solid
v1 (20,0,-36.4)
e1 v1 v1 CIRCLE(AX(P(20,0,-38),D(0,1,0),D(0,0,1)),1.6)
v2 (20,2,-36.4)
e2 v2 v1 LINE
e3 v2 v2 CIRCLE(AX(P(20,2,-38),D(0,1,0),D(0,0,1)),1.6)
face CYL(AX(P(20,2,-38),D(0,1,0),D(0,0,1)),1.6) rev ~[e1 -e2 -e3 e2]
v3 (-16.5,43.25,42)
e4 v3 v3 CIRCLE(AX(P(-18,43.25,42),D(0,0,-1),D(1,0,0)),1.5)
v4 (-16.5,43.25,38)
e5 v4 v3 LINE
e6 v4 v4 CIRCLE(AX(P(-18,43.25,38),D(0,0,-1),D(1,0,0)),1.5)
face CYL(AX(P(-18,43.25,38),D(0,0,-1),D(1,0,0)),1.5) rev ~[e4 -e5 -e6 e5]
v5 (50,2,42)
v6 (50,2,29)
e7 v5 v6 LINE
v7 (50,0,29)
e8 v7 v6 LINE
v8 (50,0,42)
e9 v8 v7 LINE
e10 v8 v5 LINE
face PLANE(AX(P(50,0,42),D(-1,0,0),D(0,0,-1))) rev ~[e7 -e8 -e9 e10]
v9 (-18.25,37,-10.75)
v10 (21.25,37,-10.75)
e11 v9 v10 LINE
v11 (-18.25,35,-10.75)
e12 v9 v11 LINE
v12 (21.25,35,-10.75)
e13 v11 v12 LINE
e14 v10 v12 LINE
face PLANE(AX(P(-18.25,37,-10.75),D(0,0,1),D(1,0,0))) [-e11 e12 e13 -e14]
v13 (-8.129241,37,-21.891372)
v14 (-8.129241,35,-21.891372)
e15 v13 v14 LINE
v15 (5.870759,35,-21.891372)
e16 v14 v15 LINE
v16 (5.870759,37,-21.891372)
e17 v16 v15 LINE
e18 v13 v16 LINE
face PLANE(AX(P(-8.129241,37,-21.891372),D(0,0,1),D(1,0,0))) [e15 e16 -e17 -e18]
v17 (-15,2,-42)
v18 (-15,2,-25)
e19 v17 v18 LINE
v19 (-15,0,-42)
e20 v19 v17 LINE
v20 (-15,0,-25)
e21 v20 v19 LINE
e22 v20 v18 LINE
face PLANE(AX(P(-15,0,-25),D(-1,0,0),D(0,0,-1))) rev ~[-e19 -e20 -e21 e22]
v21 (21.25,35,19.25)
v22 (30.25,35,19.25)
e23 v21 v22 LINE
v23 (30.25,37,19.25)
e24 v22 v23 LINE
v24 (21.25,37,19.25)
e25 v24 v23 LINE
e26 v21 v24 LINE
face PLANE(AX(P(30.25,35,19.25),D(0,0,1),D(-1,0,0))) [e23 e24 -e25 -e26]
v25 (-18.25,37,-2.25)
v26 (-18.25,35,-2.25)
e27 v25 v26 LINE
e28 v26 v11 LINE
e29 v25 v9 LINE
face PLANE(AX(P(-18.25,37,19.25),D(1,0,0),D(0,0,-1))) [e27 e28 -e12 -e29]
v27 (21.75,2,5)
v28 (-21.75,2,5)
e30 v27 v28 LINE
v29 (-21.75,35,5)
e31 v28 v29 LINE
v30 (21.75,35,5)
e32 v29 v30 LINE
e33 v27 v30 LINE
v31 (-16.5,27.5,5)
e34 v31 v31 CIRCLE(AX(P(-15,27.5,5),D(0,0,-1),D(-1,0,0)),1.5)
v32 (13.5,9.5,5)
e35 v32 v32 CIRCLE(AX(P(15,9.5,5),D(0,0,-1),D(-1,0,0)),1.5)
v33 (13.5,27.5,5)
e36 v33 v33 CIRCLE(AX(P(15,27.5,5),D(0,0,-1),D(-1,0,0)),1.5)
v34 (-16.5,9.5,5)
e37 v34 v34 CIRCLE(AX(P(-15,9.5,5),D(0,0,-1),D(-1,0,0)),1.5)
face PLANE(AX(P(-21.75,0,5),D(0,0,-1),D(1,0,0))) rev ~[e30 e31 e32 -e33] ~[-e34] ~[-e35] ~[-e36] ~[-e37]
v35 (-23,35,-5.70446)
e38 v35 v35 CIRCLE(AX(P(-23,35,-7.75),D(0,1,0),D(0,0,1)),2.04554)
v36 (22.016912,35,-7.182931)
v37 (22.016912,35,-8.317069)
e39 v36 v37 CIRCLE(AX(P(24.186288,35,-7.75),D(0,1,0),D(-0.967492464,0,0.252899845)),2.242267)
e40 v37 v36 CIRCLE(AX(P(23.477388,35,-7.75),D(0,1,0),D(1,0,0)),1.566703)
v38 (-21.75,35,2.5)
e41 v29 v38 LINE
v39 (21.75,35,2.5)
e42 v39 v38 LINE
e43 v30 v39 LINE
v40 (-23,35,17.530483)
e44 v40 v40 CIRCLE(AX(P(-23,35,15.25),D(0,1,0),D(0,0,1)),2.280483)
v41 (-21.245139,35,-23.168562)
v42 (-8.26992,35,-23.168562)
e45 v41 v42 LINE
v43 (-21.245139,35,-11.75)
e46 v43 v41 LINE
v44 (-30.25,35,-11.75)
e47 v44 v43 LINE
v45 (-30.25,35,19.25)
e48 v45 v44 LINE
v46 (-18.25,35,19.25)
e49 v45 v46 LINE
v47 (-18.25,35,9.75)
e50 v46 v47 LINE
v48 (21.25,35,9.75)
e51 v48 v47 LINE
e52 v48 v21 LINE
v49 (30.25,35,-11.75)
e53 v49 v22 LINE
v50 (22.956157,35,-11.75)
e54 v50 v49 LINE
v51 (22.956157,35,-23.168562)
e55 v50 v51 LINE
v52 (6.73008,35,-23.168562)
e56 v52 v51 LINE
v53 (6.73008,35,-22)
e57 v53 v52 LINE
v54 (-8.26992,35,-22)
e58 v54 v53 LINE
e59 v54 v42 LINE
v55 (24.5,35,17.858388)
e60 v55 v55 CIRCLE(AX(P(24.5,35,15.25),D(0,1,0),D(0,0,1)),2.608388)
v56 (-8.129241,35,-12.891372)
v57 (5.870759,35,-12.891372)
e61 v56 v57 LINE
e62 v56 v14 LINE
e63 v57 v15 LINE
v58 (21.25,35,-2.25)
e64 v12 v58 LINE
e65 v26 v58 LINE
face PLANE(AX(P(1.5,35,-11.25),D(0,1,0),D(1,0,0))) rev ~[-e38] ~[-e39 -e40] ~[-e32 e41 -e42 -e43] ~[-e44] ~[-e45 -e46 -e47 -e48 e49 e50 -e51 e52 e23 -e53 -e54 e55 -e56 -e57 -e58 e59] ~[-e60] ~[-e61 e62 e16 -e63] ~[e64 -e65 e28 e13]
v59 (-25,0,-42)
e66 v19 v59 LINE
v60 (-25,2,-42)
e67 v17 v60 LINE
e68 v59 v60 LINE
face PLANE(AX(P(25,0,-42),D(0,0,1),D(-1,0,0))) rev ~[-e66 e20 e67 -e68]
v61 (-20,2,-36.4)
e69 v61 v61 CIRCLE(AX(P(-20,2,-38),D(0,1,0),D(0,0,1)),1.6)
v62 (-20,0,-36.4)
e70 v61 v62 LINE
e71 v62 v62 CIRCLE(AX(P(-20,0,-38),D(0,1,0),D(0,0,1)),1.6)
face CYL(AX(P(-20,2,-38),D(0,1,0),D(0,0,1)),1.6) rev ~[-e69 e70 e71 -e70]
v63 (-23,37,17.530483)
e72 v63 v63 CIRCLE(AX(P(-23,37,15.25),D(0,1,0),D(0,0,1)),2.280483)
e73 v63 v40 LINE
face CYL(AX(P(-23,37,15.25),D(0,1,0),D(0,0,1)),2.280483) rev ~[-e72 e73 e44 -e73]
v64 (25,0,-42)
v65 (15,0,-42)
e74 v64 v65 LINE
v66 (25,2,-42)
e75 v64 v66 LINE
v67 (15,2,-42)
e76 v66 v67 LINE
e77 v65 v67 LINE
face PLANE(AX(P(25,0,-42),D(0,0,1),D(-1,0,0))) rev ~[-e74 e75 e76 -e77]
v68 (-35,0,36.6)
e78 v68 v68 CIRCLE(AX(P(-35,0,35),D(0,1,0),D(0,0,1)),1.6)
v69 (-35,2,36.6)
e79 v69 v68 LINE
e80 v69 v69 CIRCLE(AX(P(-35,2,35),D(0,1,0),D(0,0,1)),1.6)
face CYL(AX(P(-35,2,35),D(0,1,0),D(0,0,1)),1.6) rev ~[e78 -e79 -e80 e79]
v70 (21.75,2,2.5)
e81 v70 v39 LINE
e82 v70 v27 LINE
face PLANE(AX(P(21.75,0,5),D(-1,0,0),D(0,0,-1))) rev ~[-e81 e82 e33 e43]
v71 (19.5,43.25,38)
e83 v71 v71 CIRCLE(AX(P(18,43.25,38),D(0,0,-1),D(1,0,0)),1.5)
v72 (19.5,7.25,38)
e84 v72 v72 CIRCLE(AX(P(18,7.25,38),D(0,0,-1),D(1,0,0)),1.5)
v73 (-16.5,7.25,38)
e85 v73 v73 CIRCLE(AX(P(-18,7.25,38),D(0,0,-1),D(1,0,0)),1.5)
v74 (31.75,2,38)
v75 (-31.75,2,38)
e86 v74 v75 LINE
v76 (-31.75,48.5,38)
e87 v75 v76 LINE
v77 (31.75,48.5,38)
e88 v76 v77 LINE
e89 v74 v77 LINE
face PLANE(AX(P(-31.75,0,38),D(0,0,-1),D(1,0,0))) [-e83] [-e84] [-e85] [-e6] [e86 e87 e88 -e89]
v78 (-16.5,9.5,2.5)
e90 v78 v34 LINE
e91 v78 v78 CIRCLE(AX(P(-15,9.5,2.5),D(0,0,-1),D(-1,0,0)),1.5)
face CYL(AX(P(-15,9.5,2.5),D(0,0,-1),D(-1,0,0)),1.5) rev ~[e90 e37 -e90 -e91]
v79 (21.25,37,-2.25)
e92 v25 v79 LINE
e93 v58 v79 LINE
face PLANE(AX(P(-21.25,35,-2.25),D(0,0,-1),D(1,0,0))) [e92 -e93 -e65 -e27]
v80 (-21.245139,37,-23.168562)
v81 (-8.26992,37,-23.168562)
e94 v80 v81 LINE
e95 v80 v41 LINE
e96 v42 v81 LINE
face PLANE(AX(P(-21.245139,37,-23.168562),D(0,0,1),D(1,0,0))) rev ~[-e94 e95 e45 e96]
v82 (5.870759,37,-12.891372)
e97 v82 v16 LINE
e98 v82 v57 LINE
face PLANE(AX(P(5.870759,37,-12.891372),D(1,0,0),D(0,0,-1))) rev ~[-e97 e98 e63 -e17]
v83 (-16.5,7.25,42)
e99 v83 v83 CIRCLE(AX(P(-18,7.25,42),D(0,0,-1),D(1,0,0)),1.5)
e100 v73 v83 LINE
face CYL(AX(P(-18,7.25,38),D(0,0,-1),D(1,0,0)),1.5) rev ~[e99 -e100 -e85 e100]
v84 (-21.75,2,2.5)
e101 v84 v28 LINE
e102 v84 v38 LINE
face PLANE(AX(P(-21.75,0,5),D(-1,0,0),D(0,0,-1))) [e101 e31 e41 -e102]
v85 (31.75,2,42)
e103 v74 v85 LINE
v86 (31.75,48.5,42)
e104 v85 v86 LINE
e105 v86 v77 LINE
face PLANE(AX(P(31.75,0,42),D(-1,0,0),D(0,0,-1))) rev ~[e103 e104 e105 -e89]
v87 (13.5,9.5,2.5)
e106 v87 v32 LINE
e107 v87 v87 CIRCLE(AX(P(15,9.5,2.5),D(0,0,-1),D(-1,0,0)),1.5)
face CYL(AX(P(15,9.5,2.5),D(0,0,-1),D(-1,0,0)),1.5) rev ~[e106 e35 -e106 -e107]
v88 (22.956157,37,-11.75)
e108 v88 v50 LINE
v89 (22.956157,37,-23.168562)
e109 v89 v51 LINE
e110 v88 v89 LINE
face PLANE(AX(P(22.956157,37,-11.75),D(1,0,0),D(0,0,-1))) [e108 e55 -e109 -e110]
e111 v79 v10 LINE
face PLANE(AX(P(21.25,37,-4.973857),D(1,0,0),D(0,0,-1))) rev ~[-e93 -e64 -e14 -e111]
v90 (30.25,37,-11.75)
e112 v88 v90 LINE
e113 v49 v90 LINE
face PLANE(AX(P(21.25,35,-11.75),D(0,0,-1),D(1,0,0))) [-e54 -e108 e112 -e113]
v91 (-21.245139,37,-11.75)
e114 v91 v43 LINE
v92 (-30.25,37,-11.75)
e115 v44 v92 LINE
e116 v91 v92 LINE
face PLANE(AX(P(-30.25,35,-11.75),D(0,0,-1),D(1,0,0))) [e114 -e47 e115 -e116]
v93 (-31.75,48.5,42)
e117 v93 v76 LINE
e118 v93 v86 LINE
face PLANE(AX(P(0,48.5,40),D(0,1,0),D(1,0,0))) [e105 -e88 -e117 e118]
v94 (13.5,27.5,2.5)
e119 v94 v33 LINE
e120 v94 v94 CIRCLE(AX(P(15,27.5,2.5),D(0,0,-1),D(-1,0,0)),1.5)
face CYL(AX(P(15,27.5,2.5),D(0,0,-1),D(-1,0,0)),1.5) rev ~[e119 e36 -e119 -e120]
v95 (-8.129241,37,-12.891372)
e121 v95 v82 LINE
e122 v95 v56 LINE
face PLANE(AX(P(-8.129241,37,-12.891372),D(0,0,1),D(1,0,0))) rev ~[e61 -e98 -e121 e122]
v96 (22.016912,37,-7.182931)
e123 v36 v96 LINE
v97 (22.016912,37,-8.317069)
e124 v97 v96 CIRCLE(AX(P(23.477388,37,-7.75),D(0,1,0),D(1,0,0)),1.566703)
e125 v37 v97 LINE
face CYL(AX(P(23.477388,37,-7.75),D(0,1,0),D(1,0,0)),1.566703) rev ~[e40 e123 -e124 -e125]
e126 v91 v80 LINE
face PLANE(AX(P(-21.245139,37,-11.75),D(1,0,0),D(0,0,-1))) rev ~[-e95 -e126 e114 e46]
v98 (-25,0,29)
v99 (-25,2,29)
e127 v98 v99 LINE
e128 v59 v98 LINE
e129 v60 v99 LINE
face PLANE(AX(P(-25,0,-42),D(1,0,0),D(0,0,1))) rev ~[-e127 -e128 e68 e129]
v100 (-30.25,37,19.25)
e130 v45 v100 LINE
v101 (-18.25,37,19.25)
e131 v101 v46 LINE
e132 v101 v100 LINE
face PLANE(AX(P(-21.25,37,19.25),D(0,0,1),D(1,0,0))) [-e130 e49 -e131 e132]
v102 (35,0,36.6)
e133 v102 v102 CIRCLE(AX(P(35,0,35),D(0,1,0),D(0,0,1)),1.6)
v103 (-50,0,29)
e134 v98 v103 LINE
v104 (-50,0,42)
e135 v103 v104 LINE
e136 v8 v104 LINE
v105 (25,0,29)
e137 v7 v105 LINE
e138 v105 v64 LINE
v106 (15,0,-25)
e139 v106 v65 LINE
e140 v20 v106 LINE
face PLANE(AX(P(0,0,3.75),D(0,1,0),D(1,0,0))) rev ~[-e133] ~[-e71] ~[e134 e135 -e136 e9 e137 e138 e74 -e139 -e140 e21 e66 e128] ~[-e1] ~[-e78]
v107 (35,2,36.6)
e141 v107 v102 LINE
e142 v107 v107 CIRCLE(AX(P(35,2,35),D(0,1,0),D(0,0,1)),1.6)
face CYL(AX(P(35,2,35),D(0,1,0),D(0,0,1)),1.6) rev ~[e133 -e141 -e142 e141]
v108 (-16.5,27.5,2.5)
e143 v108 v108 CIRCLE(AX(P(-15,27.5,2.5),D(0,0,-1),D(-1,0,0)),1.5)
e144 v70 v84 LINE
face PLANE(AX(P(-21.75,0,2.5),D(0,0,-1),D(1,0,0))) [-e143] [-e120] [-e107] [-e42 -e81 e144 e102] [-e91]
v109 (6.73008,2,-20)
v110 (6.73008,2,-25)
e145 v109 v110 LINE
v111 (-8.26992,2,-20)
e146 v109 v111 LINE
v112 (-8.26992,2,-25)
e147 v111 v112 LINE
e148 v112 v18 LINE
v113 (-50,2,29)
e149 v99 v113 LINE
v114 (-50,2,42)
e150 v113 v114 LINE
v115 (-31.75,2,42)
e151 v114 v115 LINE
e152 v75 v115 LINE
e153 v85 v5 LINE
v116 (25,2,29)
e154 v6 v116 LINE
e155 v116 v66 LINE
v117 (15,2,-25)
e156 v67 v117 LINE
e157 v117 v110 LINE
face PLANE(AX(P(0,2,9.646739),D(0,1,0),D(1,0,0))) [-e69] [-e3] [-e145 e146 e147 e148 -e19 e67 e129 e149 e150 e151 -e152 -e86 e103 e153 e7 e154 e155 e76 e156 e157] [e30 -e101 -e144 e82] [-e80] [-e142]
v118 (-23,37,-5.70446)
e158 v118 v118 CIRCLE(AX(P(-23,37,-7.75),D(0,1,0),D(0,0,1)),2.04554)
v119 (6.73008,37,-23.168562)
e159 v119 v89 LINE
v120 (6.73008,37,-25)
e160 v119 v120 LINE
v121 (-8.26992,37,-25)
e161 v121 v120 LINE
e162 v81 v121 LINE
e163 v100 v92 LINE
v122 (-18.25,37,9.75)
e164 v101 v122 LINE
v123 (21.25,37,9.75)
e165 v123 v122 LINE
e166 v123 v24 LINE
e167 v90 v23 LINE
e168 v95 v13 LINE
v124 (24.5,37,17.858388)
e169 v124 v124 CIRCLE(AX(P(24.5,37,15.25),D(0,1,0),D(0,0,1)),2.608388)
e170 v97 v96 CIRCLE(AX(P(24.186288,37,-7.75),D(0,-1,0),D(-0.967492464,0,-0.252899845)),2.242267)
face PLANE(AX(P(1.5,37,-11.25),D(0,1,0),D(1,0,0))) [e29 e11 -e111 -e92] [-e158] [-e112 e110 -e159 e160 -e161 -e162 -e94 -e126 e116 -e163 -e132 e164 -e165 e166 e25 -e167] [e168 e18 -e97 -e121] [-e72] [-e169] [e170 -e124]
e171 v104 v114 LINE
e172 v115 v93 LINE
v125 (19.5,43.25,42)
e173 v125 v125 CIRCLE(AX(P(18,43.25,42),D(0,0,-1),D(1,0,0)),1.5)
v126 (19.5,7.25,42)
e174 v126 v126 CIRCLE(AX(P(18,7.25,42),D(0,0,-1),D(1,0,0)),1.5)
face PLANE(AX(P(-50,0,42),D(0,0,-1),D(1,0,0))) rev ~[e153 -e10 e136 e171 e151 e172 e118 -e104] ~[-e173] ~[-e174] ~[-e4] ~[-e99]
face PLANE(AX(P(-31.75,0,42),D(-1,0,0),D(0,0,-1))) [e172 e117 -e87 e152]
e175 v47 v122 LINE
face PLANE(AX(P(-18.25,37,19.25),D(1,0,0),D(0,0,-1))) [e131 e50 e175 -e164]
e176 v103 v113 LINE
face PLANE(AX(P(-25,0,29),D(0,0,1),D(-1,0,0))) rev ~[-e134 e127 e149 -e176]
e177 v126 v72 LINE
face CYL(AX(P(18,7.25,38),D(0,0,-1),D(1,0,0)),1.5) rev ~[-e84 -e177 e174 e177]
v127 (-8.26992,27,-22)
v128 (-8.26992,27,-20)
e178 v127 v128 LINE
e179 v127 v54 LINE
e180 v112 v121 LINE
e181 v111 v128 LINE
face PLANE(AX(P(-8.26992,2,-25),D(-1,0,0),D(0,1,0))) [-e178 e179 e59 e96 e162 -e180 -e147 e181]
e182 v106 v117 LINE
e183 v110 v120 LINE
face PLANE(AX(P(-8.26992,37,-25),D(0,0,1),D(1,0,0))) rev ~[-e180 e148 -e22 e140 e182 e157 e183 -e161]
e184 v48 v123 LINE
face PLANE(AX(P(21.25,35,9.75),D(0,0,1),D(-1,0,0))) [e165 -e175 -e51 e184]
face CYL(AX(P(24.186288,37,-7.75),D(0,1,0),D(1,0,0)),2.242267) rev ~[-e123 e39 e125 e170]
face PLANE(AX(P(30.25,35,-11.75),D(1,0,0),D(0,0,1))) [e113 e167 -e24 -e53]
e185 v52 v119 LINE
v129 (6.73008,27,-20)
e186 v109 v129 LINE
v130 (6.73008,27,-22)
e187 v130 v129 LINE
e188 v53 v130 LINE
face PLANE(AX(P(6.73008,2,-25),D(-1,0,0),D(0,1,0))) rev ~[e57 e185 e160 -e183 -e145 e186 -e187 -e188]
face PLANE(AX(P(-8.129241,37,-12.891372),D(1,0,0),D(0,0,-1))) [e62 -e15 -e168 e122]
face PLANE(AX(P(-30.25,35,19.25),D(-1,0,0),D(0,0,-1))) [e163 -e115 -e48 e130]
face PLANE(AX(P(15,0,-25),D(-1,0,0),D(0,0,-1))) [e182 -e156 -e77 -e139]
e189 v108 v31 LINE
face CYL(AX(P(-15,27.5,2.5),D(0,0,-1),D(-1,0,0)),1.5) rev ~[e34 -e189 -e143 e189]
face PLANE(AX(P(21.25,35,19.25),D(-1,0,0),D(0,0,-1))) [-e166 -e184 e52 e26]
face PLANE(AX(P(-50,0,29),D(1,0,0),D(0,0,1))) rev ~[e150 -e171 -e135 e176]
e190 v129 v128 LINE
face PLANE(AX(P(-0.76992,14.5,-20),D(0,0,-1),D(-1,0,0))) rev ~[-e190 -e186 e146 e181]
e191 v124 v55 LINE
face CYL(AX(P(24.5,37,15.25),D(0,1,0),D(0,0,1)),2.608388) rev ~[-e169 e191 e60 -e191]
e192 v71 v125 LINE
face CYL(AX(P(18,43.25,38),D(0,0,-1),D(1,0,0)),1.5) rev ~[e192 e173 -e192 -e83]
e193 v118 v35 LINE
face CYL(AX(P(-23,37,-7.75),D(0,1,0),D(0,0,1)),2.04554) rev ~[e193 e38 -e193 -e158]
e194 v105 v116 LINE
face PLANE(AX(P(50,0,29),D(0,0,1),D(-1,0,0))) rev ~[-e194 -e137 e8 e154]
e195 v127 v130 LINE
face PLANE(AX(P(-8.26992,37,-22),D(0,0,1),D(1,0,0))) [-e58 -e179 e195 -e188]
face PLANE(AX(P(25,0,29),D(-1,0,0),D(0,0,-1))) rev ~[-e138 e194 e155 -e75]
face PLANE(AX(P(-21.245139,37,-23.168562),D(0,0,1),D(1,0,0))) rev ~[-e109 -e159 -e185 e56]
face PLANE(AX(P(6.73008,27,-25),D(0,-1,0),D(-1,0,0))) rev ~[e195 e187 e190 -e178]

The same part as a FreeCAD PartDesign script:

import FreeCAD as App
import Part
import Sketcher

V = App.Vector
Q = App.Units.Quantity

doc = App.newDocument("Part")
params = doc.addObject("Spreadsheet::Sheet", "Params")
for row, (alias, value) in enumerate([
    ("sketch1_width", "50 mm"),
    ("sketch1_width2", "25 mm"),
    ("sketch1_height", "71 mm"),
    ("sketch1_height2", "13 mm"),
    ("pad1_length", "2 mm"),
    ("sketch2_width", "30 mm"),
    ("sketch2_height", "17 mm"),
    ("pocket1_length", "8 mm"),
    ("sketch3_height", "4 mm"),
    ("sketch3_width", "63.5 mm"),
    ("pad2_length", "48.5 mm"),
    ("sketch4_width", "43.5 mm"),
    ("sketch4_height", "2.5 mm"),
    ("pad3_length", "35 mm"),
    ("sketch5_diameter", "3 mm"),
    ("pocket2_length", "18 mm"),
    ("sketch6_diameter", "3 mm"),
    ("pocket3_length", "23 mm"),
    ("sketch7_width", "9 mm"),
    ("sketch7_height", "31 mm"),
    ("sketch7_width2", "42.5 mm"),
    ("sketch7_height2", "9.5 mm"),
    ("pad4_length", "2 mm"),
    ("sketch8_diameter", "3 mm"),
    ("pocket4_length", "2 mm"),
    ("sketch9_width", "3 mm"),
    ("sketch9_height", "31 mm"),
    ("pad5_length", "2 mm"),
    ("sketch10_width", "15 mm"),
    ("sketch10_height", "3 mm"),
    ("pad6_length", "25 mm"),
    ("sketch11_width", "15 mm"),
    ("sketch11_height", "3 mm"),
    ("pad7_length", "2 mm"),
    ("pocket5_length", "2 mm"),
    ("pad8_length", "2 mm"),
    ("sketch14_width", "15 mm"),
    ("sketch14_height", "3 mm"),
    ("pad9_length", "8 mm"),
    ("sketch15_width", "14 mm"),
    ("sketch15_height", "9 mm"),
    ("pocket6_length", "2 mm"),
    ("sketch16_height", "1 mm"),
    ("sketch16_width", "39.5 mm"),
    ("pad10_length", "2 mm"),
    ("pad11_length", "2 mm"),
    ("pocket7_length", "2 mm"),
    ("pad12_length", "2 mm"),
    ("pocket8_length", "2 mm"),
    ("pocket9_length", "2 mm"),
    ("pocket10_length", "2 mm"),
    ("sketch23_width", "15 mm"),
    ("sketch23_height", "25 mm"),
    ("pad13_length", "5 mm"),
    ("sketch24_diameter", "3.2 mm"),
    ("pocket11_length", "10 mm"),
], start=1):
    params.set(f"A{row}", alias)
    params.set(f"B{row}", "=" + value)
    params.setAlias(f"B{row}", alias)

body = doc.addObject("PartDesign::Body", "Body")

sketch1 = body.newObject("Sketcher::SketchObject", "Sketch")
sketch1.AttachmentSupport = (doc.getObject("XZ_Plane"), [""])
sketch1.MapMode = "FlatFace"
sketch1.addGeometry([
    Part.LineSegment(V(25, -42, 0), V(-25, -42, 0)),
    Part.LineSegment(V(-25, -42, 0), V(-25, 29, 0)),
    Part.LineSegment(V(-25, 29, 0), V(-50, 29, 0)),
    Part.LineSegment(V(-50, 29, 0), V(-50, 42, 0)),
    Part.LineSegment(V(-50, 42, 0), V(50, 42, 0)),
    Part.LineSegment(V(50, 42, 0), V(50, 29, 0)),
    Part.LineSegment(V(50, 29, 0), V(25, 29, 0)),
    Part.LineSegment(V(25, 29, 0), V(25, -42, 0)),
], False)
sketch1.addConstraint([
    Sketcher.Constraint("Coincident", 0, 2, 1, 1),
    Sketcher.Constraint("Coincident", 1, 2, 2, 1),
    Sketcher.Constraint("Coincident", 2, 2, 3, 1),
    Sketcher.Constraint("Coincident", 3, 2, 4, 1),
    Sketcher.Constraint("Coincident", 4, 2, 5, 1),
    Sketcher.Constraint("Coincident", 5, 2, 6, 1),
    Sketcher.Constraint("Coincident", 6, 2, 7, 1),
    Sketcher.Constraint("Coincident", 7, 2, 0, 1),
    Sketcher.Constraint("Horizontal", 0),
    Sketcher.Constraint("Vertical", 1),
    Sketcher.Constraint("Horizontal", 2),
    Sketcher.Constraint("Vertical", 3),
    Sketcher.Constraint("Horizontal", 4),
    Sketcher.Constraint("Vertical", 5),
    Sketcher.Constraint("Horizontal", 6),
    Sketcher.Constraint("Vertical", 7),
    Sketcher.Constraint("Symmetric", 2, 2, 5, 2, -2),
    Sketcher.Constraint("Equal", 2, 6),
    Sketcher.Constraint("DistanceX", 0, 2, 0, 1, Q("50 mm")),
    Sketcher.Constraint("DistanceX", 2, 2, 2, 1, Q("25 mm")),
    Sketcher.Constraint("DistanceY", 1, 1, 1, 2, Q("71 mm")),
    Sketcher.Constraint("DistanceY", 3, 1, 3, 2, Q("13 mm")),
    Sketcher.Constraint("DistanceY", 0, 2, -1, 1, Q("42 mm")),
])
sketch1.setExpression("Constraints[18]", "Params.sketch1_width")
sketch1.setExpression("Constraints[19]", "Params.sketch1_width2")
sketch1.setExpression("Constraints[20]", "Params.sketch1_height")
sketch1.setExpression("Constraints[21]", "Params.sketch1_height2")
pad1 = body.newObject("PartDesign::Pad", "Pad")
pad1.Profile = sketch1
pad1.setExpression("Length", "Params.pad1_length")
pad1.Reversed = True

sketch2 = body.newObject("Sketcher::SketchObject", "Sketch001")
sketch2.AttachmentSupport = (doc.getObject("XZ_Plane"), [""])
sketch2.MapMode = "FlatFace"
sketch2.addGeometry([
    Part.LineSegment(V(-15, -42, 0), V(-15, -25, 0)),
    Part.LineSegment(V(-15, -25, 0), V(15, -25, 0)),
    Part.LineSegment(V(15, -25, 0), V(15, -42, 0)),
    Part.LineSegment(V(15, -42, 0), V(-15, -42, 0)),
], False)
sketch2.addConstraint([
    Sketcher.Constraint("Coincident", 0, 2, 1, 1),
    Sketcher.Constraint("Coincident", 1, 2, 2, 1),
    Sketcher.Constraint("Coincident", 2, 2, 3, 1),
    Sketcher.Constraint("Coincident", 3, 2, 0, 1),
    Sketcher.Constraint("Vertical", 0),
    Sketcher.Constraint("Horizontal", 1),
    Sketcher.Constraint("Vertical", 2),
    Sketcher.Constraint("Horizontal", 3),
    Sketcher.Constraint("DistanceX", 1, 1, 1, 2, Q("30 mm")),
    Sketcher.Constraint("DistanceY", 0, 1, 0, 2, Q("17 mm")),
    Sketcher.Constraint("DistanceX", 0, 2, -1, 1, Q("15 mm")),
    Sketcher.Constraint("DistanceY", 0, 2, -1, 1, Q("25 mm")),
])
sketch2.setExpression("Constraints[8]", "Params.sketch2_width")
sketch2.setExpression("Constraints[9]", "Params.sketch2_height")
pocket1 = body.newObject("PartDesign::Pocket", "Pocket")
pocket1.Profile = sketch2
pocket1.setExpression("Length", "Params.pocket1_length")

sketch3 = body.newObject("Sketcher::SketchObject", "Sketch002")
sketch3.AttachmentSupport = (doc.getObject("XZ_Plane"), [""])
sketch3.MapMode = "FlatFace"
sketch3.addGeometry([
    Part.LineSegment(V(-31.75, 38, 0), V(-31.75, 42, 0)),
    Part.LineSegment(V(-31.75, 42, 0), V(31.75, 42, 0)),
    Part.LineSegment(V(31.75, 42, 0), V(31.75, 38, 0)),
    Part.LineSegment(V(31.75, 38, 0), V(-31.75, 38, 0)),
], False)
sketch3.addConstraint([
    Sketcher.Constraint("Coincident", 0, 2, 1, 1),
    Sketcher.Constraint("Coincident", 1, 2, 2, 1),
    Sketcher.Constraint("Coincident", 2, 2, 3, 1),
    Sketcher.Constraint("Coincident", 3, 2, 0, 1),
    Sketcher.Constraint("Vertical", 0),
    Sketcher.Constraint("Horizontal", 1),
    Sketcher.Constraint("Vertical", 2),
    Sketcher.Constraint("Horizontal", 3),
    Sketcher.Constraint("DistanceY", 0, 1, 0, 2, Q("4 mm")),
    Sketcher.Constraint("DistanceX", 1, 1, 1, 2, Q("63.5 mm")),
    Sketcher.Constraint("DistanceY", -1, 1, 0, 2, Q("42 mm")),
    Sketcher.Constraint("DistanceX", 0, 2, -1, 1, Q("31.75 mm")),
])
sketch3.setExpression("Constraints[8]", "Params.sketch3_height")
sketch3.setExpression("Constraints[9]", "Params.sketch3_width")
pad2 = body.newObject("PartDesign::Pad", "Pad001")
pad2.Profile = sketch3
pad2.setExpression("Length", "Params.pad2_length")
pad2.Reversed = True

sketch4 = body.newObject("Sketcher::SketchObject", "Sketch003")
sketch4.AttachmentSupport = (doc.getObject("XZ_Plane"), [""])
sketch4.MapMode = "FlatFace"
sketch4.addGeometry([
    Part.LineSegment(V(-21.75, 2.5, 0), V(-21.75, 5, 0)),
    Part.LineSegment(V(-21.75, 5, 0), V(21.75, 5, 0)),
    Part.LineSegment(V(21.75, 5, 0), V(21.75, 2.5, 0)),
    Part.LineSegment(V(21.75, 2.5, 0), V(-21.75, 2.5, 0)),
], False)
sketch4.addConstraint([
    Sketcher.Constraint("Coincident", 0, 2, 1, 1),
    Sketcher.Constraint("Coincident", 1, 2, 2, 1),
    Sketcher.Constraint("Coincident", 2, 2, 3, 1),
    Sketcher.Constraint("Coincident", 3, 2, 0, 1),
    Sketcher.Constraint("Vertical", 0),
    Sketcher.Constraint("Horizontal", 1),
    Sketcher.Constraint("Vertical", 2),
    Sketcher.Constraint("Horizontal", 3),
    Sketcher.Constraint("DistanceX", 1, 1, 1, 2, Q("43.5 mm")),
    Sketcher.Constraint("DistanceY", 0, 1, 0, 2, Q("2.5 mm")),
    Sketcher.Constraint("DistanceY", -1, 1, 0, 2, Q("5 mm")),
    Sketcher.Constraint("DistanceX", 0, 2, -1, 1, Q("21.75 mm")),
])
sketch4.setExpression("Constraints[8]", "Params.sketch4_width")
sketch4.setExpression("Constraints[9]", "Params.sketch4_height")
pad3 = body.newObject("PartDesign::Pad", "Pad002")
pad3.Profile = sketch4
pad3.setExpression("Length", "Params.pad3_length")
pad3.Reversed = True

sketch5 = body.newObject("Sketcher::SketchObject", "Sketch004")
sketch5.AttachmentSupport = (doc.getObject("XY_Plane"), [""])
sketch5.MapMode = "FlatFace"
sketch5.AttachmentOffset = App.Placement(V(0, 0, 38), App.Rotation())
sketch5.addGeometry([
    Part.Circle(V(18, 43.25, 0), V(0, 0, 1), 1.5),
    Part.Circle(V(-18, 43.25, 0), V(0, 0, 1), 1.5),
    Part.Circle(V(-18, 7.25, 0), V(0, 0, 1), 1.5),
    Part.Circle(V(18, 7.25, 0), V(0, 0, 1), 1.5),
], False)
sketch5.addConstraint([
    Sketcher.Constraint("Equal", 0, 1),
    Sketcher.Constraint("Equal", 1, 2),
    Sketcher.Constraint("Equal", 2, 3),
    Sketcher.Constraint("Symmetric", 0, 3, 1, 3, -2),
    Sketcher.Constraint("Symmetric", 2, 3, 3, 3, -2),
    Sketcher.Constraint("Vertical", 1, 3, 2, 3),
    Sketcher.Constraint("Diameter", 0, Q("3 mm")),
    Sketcher.Constraint("DistanceX", -1, 1, 0, 3, Q("18 mm")),
    Sketcher.Constraint("DistanceY", 2, 3, 1, 3, Q("36 mm")),
    Sketcher.Constraint("DistanceY", -1, 1, 0, 3, Q("43.25 mm")),
])
sketch5.setExpression("Constraints[6]", "Params.sketch5_diameter")
pocket2 = body.newObject("PartDesign::Pocket", "Pocket001")
pocket2.Profile = sketch5
pocket2.setExpression("Length", "Params.pocket2_length")
pocket2.Midplane = True

sketch6 = body.newObject("Sketcher::SketchObject", "Sketch005")
sketch6.AttachmentSupport = (doc.getObject("XY_Plane"), [""])
sketch6.MapMode = "FlatFace"
sketch6.AttachmentOffset = App.Placement(V(0, 0, 2.5), App.Rotation())
sketch6.addGeometry([
    Part.Circle(V(15, 27.5, 0), V(0, 0, 1), 1.5),
    Part.Circle(V(-15, 9.5, 0), V(0, 0, 1), 1.5),
    Part.Circle(V(-15, 27.5, 0), V(0, 0, 1), 1.5),
    Part.Circle(V(15, 9.5, 0), V(0, 0, 1), 1.5),
], False)
sketch6.addConstraint([
    Sketcher.Constraint("Equal", 0, 1),
    Sketcher.Constraint("Equal", 1, 2),
    Sketcher.Constraint("Equal", 2, 3),
    Sketcher.Constraint("Symmetric", 0, 3, 2, 3, -2),
    Sketcher.Constraint("Symmetric", 1, 3, 3, 3, -2),
    Sketcher.Constraint("Vertical", 1, 3, 2, 3),
    Sketcher.Constraint("Diameter", 0, Q("3 mm")),
    Sketcher.Constraint("DistanceX", -1, 1, 0, 3, Q("15 mm")),
    Sketcher.Constraint("DistanceY", 1, 3, 0, 3, Q("18 mm")),
    Sketcher.Constraint("DistanceY", -1, 1, 0, 3, Q("27.5 mm")),
])
sketch6.setExpression("Constraints[6]", "Params.sketch6_diameter")
pocket3 = body.newObject("PartDesign::Pocket", "Pocket002")
pocket3.Profile = sketch6
pocket3.setExpression("Length", "Params.pocket3_length")
pocket3.Reversed = True
body2 = doc.addObject("PartDesign::Body", "Body001")

sketch7 = body2.newObject("Sketcher::SketchObject", "Sketch006")
sketch7.AttachmentSupport = (doc.getObject("XZ_Plane001"), [""])
sketch7.MapMode = "FlatFace"
sketch7.AttachmentOffset = App.Placement(V(0, 0, -35), App.Rotation())
sketch7.addGeometry([
    Part.LineSegment(V(21.25, 9.75, 0), V(-21.25, 9.75, 0)),
    Part.LineSegment(V(-21.25, 9.75, 0), V(-21.25, 19.25, 0)),
    Part.LineSegment(V(-21.25, 19.25, 0), V(-30.25, 19.25, 0)),
    Part.LineSegment(V(-30.25, 19.25, 0), V(-30.25, -11.75, 0)),
    Part.LineSegment(V(-30.25, -11.75, 0), V(-21.25, -11.75, 0)),
    Part.LineSegment(V(-21.25, -11.75, 0), V(-21.25, -2.25, 0)),
    Part.LineSegment(V(-21.25, -2.25, 0), V(21.25, -2.25, 0)),
    Part.LineSegment(V(21.25, -2.25, 0), V(21.25, -11.75, 0)),
    Part.LineSegment(V(21.25, -11.75, 0), V(30.25, -11.75, 0)),
    Part.LineSegment(V(30.25, -11.75, 0), V(30.25, 19.25, 0)),
    Part.LineSegment(V(30.25, 19.25, 0), V(21.25, 19.25, 0)),
    Part.LineSegment(V(21.25, 19.25, 0), V(21.25, 9.75, 0)),
], False)
sketch7.addConstraint([
    Sketcher.Constraint("Coincident", 0, 2, 1, 1),
    Sketcher.Constraint("Coincident", 1, 2, 2, 1),
    Sketcher.Constraint("Coincident", 2, 2, 3, 1),
    Sketcher.Constraint("Coincident", 3, 2, 4, 1),
    Sketcher.Constraint("Coincident", 4, 2, 5, 1),
    Sketcher.Constraint("Coincident", 5, 2, 6, 1),
    Sketcher.Constraint("Coincident", 6, 2, 7, 1),
    Sketcher.Constraint("Coincident", 7, 2, 8, 1),
    Sketcher.Constraint("Coincident", 8, 2, 9, 1),
    Sketcher.Constraint("Coincident", 9, 2, 10, 1),
    Sketcher.Constraint("Coincident", 10, 2, 11, 1),
    Sketcher.Constraint("Coincident", 11, 2, 0, 1),
    Sketcher.Constraint("Horizontal", 0),
    Sketcher.Constraint("Vertical", 1),
    Sketcher.Constraint("Horizontal", 2),
    Sketcher.Constraint("Vertical", 3),
    Sketcher.Constraint("Horizontal", 4),
    Sketcher.Constraint("Vertical", 5),
    Sketcher.Constraint("Horizontal", 6),
    Sketcher.Constraint("Vertical", 7),
    Sketcher.Constraint("Horizontal", 8),
    Sketcher.Constraint("Vertical", 9),
    Sketcher.Constraint("Horizontal", 10),
    Sketcher.Constraint("Vertical", 11),
    Sketcher.Constraint("Symmetric", 4, 2, 7, 2, -2),
    Sketcher.Constraint("Symmetric", 2, 2, 9, 2, -2),
    Sketcher.Constraint("Vertical", 1, 2, 4, 2),
    Sketcher.Constraint("Vertical", 7, 2, 10, 2),
    Sketcher.Constraint("Equal", 1, 5),
    Sketcher.Constraint("DistanceX", 2, 2, 2, 1, Q("9 mm")),
    Sketcher.Constraint("DistanceY", 3, 2, 3, 1, Q("31 mm")),
    Sketcher.Constraint("DistanceX", 0, 2, 0, 1, Q("42.5 mm")),
    Sketcher.Constraint("DistanceY", 1, 1, 1, 2, Q("9.5 mm")),
    Sketcher.Constraint("DistanceY", -1, 1, 0, 2, Q("9.75 mm")),
])
sketch7.setExpression("Constraints[29]", "Params.sketch7_width")
sketch7.setExpression("Constraints[30]", "Params.sketch7_height")
sketch7.setExpression("Constraints[31]", "Params.sketch7_width2")
sketch7.setExpression("Constraints[32]", "Params.sketch7_height2")
pad4 = body2.newObject("PartDesign::Pad", "Pad003")
pad4.Profile = sketch7
pad4.setExpression("Length", "Params.pad4_length")
pad4.Reversed = True

sketch8 = body2.newObject("Sketcher::SketchObject", "Sketch007")
sketch8.AttachmentSupport = (doc.getObject("XZ_Plane001"), [""])
sketch8.MapMode = "FlatFace"
sketch8.AttachmentOffset = App.Placement(V(0, 0, -37), App.Rotation())
sketch8.addGeometry([
    Part.Circle(V(23, 15.25, 0), V(0, 0, 1), 1.5),
    Part.Circle(V(23, -7.75, 0), V(0, 0, 1), 1.5),
    Part.Circle(V(-23, -7.75, 0), V(0, 0, 1), 1.5),
    Part.Circle(V(-23, 15.25, 0), V(0, 0, 1), 1.5),
], False)
sketch8.addConstraint([
    Sketcher.Constraint("Equal", 0, 1),
    Sketcher.Constraint("Equal", 1, 2),
    Sketcher.Constraint("Equal", 2, 3),
    Sketcher.Constraint("Symmetric", 1, 3, 2, 3, -2),
    Sketcher.Constraint("Symmetric", 0, 3, 3, 3, -2),
    Sketcher.Constraint("Vertical", 0, 3, 1, 3),
    Sketcher.Constraint("Diameter", 0, Q("3 mm")),
    Sketcher.Constraint("DistanceX", -1, 1, 0, 3, Q("23 mm")),
    Sketcher.Constraint("DistanceY", 1, 3, 0, 3, Q("23 mm")),
    Sketcher.Constraint("DistanceY", -1, 1, 0, 3, Q("15.25 mm")),
])
sketch8.setExpression("Constraints[6]", "Params.sketch8_diameter")
pocket4 = body2.newObject("PartDesign::Pocket", "Pocket003")
pocket4.Profile = sketch8
pocket4.setExpression("Length", "Params.pocket4_length")
pocket4.Reversed = True
doc.recompute()

boolean = body.newObject("PartDesign::Boolean", "Boolean")
boolean.Type = "Fuse"
boolean.addObjects([body2])

sketch9 = body.newObject("Sketcher::SketchObject", "Sketch008")
sketch9.AttachmentSupport = (doc.getObject("XZ_Plane"), [""])
sketch9.MapMode = "FlatFace"
sketch9.AttachmentOffset = App.Placement(V(0, 0, -37), App.Rotation())
sketch9.addGeometry([
    Part.LineSegment(V(-21.25, -11.75, 0), V(-21.25, 19.25, 0)),
    Part.LineSegment(V(-21.25, 19.25, 0), V(-18.25, 19.25, 0)),
    Part.LineSegment(V(-18.25, 19.25, 0), V(-18.25, -11.75, 0)),
    Part.LineSegment(V(-18.25, -11.75, 0), V(-21.25, -11.75, 0)),
], False)
sketch9.addConstraint([
    Sketcher.Constraint("Coincident", 0, 2, 1, 1),
    Sketcher.Constraint("Coincident", 1, 2, 2, 1),
    Sketcher.Constraint("Coincident", 2, 2, 3, 1),
    Sketcher.Constraint("Coincident", 3, 2, 0, 1),
    Sketcher.Constraint("Vertical", 0),
    Sketcher.Constraint("Horizontal", 1),
    Sketcher.Constraint("Vertical", 2),
    Sketcher.Constraint("Horizontal", 3),
    Sketcher.Constraint("DistanceX", 1, 1, 1, 2, Q("3 mm")),
    Sketcher.Constraint("DistanceY", 0, 1, 0, 2, Q("31 mm")),
    Sketcher.Constraint("DistanceX", 0, 2, -1, 1, Q("21.25 mm")),
    Sketcher.Constraint("DistanceY", -1, 1, 0, 2, Q("19.25 mm")),
])
sketch9.setExpression("Constraints[8]", "Params.sketch9_width")
sketch9.setExpression("Constraints[9]", "Params.sketch9_height")
pad5 = body.newObject("PartDesign::Pad", "Pad004")
pad5.Profile = sketch9
pad5.setExpression("Length", "Params.pad5_length")

sketch10 = body.newObject("Sketcher::SketchObject", "Sketch009")
sketch10.AttachmentSupport = (doc.getObject("XZ_Plane"), [""])
sketch10.MapMode = "FlatFace"
sketch10.AttachmentOffset = App.Placement(V(0, 0, -2), App.Rotation())
sketch10.addGeometry([
    Part.LineSegment(V(-8.26992, -25, 0), V(-8.26992, -22, 0)),
    Part.LineSegment(V(-8.26992, -22, 0), V(6.73008, -22, 0)),
    Part.LineSegment(V(6.73008, -22, 0), V(6.73008, -25, 0)),
    Part.LineSegment(V(6.73008, -25, 0), V(-8.26992, -25, 0)),
], False)
sketch10.addConstraint([
    Sketcher.Constraint("Coincident", 0, 2, 1, 1),
    Sketcher.Constraint("Coincident", 1, 2, 2, 1),
    Sketcher.Constraint("Coincident", 2, 2, 3, 1),
    Sketcher.Constraint("Coincident", 3, 2, 0, 1),
    Sketcher.Constraint("Vertical", 0),
    Sketcher.Constraint("Horizontal", 1),
    Sketcher.Constraint("Vertical", 2),
    Sketcher.Constraint("Horizontal", 3),
    Sketcher.Constraint("DistanceX", 1, 1, 1, 2, Q("15 mm")),
    Sketcher.Constraint("DistanceY", 0, 1, 0, 2, Q("3 mm")),
    Sketcher.Constraint("DistanceY", 0, 2, -1, 1, Q("22 mm")),
    Sketcher.Constraint("DistanceX", 0, 2, -1, 1, Q("8.26992 mm")),
])
sketch10.setExpression("Constraints[8]", "Params.sketch10_width")
sketch10.setExpression("Constraints[9]", "Params.sketch10_height")
pad6 = body.newObject("PartDesign::Pad", "Pad005")
pad6.Profile = sketch10
pad6.setExpression("Length", "Params.pad6_length")
pad6.Reversed = True

sketch11 = body.newObject("Sketcher::SketchObject", "Sketch010")
sketch11.AttachmentSupport = (doc.getObject("XZ_Plane"), [""])
sketch11.MapMode = "FlatFace"
sketch11.AttachmentOffset = App.Placement(V(0, 0, -27), App.Rotation())
sketch11.addGeometry([
    Part.LineSegment(V(-8.26992, -25, 0), V(-8.26992, -22, 0)),
    Part.LineSegment(V(-8.26992, -22, 0), V(6.73008, -22, 0)),
    Part.LineSegment(V(6.73008, -22, 0), V(6.73008, -25, 0)),
    Part.LineSegment(V(6.73008, -25, 0), V(-8.26992, -25, 0)),
], False)
sketch11.addConstraint([
    Sketcher.Constraint("Coincident", 0, 2, 1, 1),
    Sketcher.Constraint("Coincident", 1, 2, 2, 1),
    Sketcher.Constraint("Coincident", 2, 2, 3, 1),
    Sketcher.Constraint("Coincident", 3, 2, 0, 1),
    Sketcher.Constraint("Vertical", 0),
    Sketcher.Constraint("Horizontal", 1),
    Sketcher.Constraint("Vertical", 2),
    Sketcher.Constraint("Horizontal", 3),
    Sketcher.Constraint("DistanceX", 1, 1, 1, 2, Q("15 mm")),
    Sketcher.Constraint("DistanceY", 0, 1, 0, 2, Q("3 mm")),
    Sketcher.Constraint("DistanceY", 0, 2, -1, 1, Q("22 mm")),
    Sketcher.Constraint("DistanceX", 0, 2, -1, 1, Q("8.26992 mm")),
])
sketch11.setExpression("Constraints[8]", "Params.sketch11_width")
sketch11.setExpression("Constraints[9]", "Params.sketch11_height")
pad7 = body.newObject("PartDesign::Pad", "Pad006")
pad7.Profile = sketch11
pad7.setExpression("Length", "Params.pad7_length")
pad7.Reversed = True

sketch12 = body.newObject("Sketcher::SketchObject", "Sketch011")
sketch12.AttachmentSupport = (doc.getObject("XY_Plane"), [""])
sketch12.MapMode = "FlatFace"
sketch12.AttachmentOffset = App.Placement(V(0, 0, -25), App.Rotation())
sketch12.addGeometry(Part.Circle(V(-1.06568, 20.360267, 0), V(0, 0, 1), 3.826074), False)
sketch12.addConstraint([
    Sketcher.Constraint("Diameter", 0, Q("7.652148 mm")),
    Sketcher.Constraint("DistanceX", 0, 3, -1, 1, Q("1.06568 mm")),
    Sketcher.Constraint("DistanceY", -1, 1, 0, 3, Q("20.360267 mm")),
])
pocket5 = body.newObject("PartDesign::Pocket", "Pocket004")
pocket5.Profile = sketch12
pocket5.setExpression("Length", "Params.pocket5_length")
pocket5.Reversed = True

sketch13 = body.newObject("Sketcher::SketchObject", "Sketch012")
sketch13.AttachmentSupport = (doc.getObject("XZ_Plane"), [""])
sketch13.MapMode = "FlatFace"
sketch13.AttachmentOffset = App.Placement(V(0, 0, -37), App.Rotation())
sketch13.addGeometry([
    Part.LineSegment(V(-21.245139, -23.168562, 0), V(-21.245139, -11.75, 0)),
    Part.LineSegment(V(-21.245139, -11.75, 0), V(22.956157, -11.75, 0)),
    Part.LineSegment(V(22.956157, -11.75, 0), V(22.956157, -23.168562, 0)),
    Part.LineSegment(V(22.956157, -23.168562, 0), V(-21.245139, -23.168562, 0)),
], False)
sketch13.addConstraint([
    Sketcher.Constraint("Coincident", 0, 2, 1, 1),
    Sketcher.Constraint("Coincident", 1, 2, 2, 1),
    Sketcher.Constraint("Coincident", 2, 2, 3, 1),
    Sketcher.Constraint("Coincident", 3, 2, 0, 1),
    Sketcher.Constraint("Vertical", 0),
    Sketcher.Constraint("Horizontal", 1),
    Sketcher.Constraint("Vertical", 2),
    Sketcher.Constraint("Horizontal", 3),
    Sketcher.Constraint("DistanceY", 0, 2, -1, 1, Q("11.75 mm")),
    Sketcher.Constraint("DistanceY", 0, 1, 0, 2, Q("11.418562 mm")),
    Sketcher.Constraint("DistanceX", 1, 1, 1, 2, Q("44.201296 mm")),
    Sketcher.Constraint("DistanceX", 0, 2, -1, 1, Q("21.245139 mm")),
])
pad8 = body.newObject("PartDesign::Pad", "Pad007")
pad8.Profile = sketch13
pad8.setExpression("Length", "Params.pad8_length")

sketch14 = body.newObject("Sketcher::SketchObject", "Sketch013")
sketch14.AttachmentSupport = (doc.getObject("XZ_Plane"), [""])
sketch14.MapMode = "FlatFace"
sketch14.AttachmentOffset = App.Placement(V(0, 0, -37), App.Rotation())
sketch14.addGeometry([
    Part.LineSegment(V(-8.26992, -25, 0), V(-8.26992, -22, 0)),
    Part.LineSegment(V(-8.26992, -22, 0), V(6.73008, -22, 0)),
    Part.LineSegment(V(6.73008, -22, 0), V(6.73008, -25, 0)),
    Part.LineSegment(V(6.73008, -25, 0), V(-8.26992, -25, 0)),
], False)
sketch14.addConstraint([
    Sketcher.Constraint("Coincident", 0, 2, 1, 1),
    Sketcher.Constraint("Coincident", 1, 2, 2, 1),
    Sketcher.Constraint("Coincident", 2, 2, 3, 1),
    Sketcher.Constraint("Coincident", 3, 2, 0, 1),
    Sketcher.Constraint("Vertical", 0),
    Sketcher.Constraint("Horizontal", 1),
    Sketcher.Constraint("Vertical", 2),
    Sketcher.Constraint("Horizontal", 3),
    Sketcher.Constraint("DistanceX", 1, 1, 1, 2, Q("15 mm")),
    Sketcher.Constraint("DistanceY", 0, 1, 0, 2, Q("3 mm")),
    Sketcher.Constraint("DistanceY", 0, 2, -1, 1, Q("22 mm")),
    Sketcher.Constraint("DistanceX", 0, 2, -1, 1, Q("8.26992 mm")),
])
sketch14.setExpression("Constraints[8]", "Params.sketch14_width")
sketch14.setExpression("Constraints[9]", "Params.sketch14_height")
pad9 = body.newObject("PartDesign::Pad", "Pad008")
pad9.Profile = sketch14
pad9.setExpression("Length", "Params.pad9_length")

sketch15 = body.newObject("Sketcher::SketchObject", "Sketch014")
sketch15.AttachmentSupport = (doc.getObject("XZ_Plane"), [""])
sketch15.MapMode = "FlatFace"
sketch15.AttachmentOffset = App.Placement(V(0, 0, -37), App.Rotation())
sketch15.addGeometry([
    Part.LineSegment(V(-8.129241, -21.891372, 0), V(-8.129241, -12.891372, 0)),
    Part.LineSegment(V(-8.129241, -12.891372, 0), V(5.870759, -12.891372, 0)),
    Part.LineSegment(V(5.870759, -12.891372, 0), V(5.870759, -21.891372, 0)),
    Part.LineSegment(V(5.870759, -21.891372, 0), V(-8.129241, -21.891372, 0)),
], False)
sketch15.addConstraint([
    Sketcher.Constraint("Coincident", 0, 2, 1, 1),
    Sketcher.Constraint("Coincident", 1, 2, 2, 1),
    Sketcher.Constraint("Coincident", 2, 2, 3, 1),
    Sketcher.Constraint("Coincident", 3, 2, 0, 1),
    Sketcher.Constraint("Vertical", 0),
    Sketcher.Constraint("Horizontal", 1),
    Sketcher.Constraint("Vertical", 2),
    Sketcher.Constraint("Horizontal", 3),
    Sketcher.Constraint("DistanceX", 1, 1, 1, 2, Q("14 mm")),
    Sketcher.Constraint("DistanceY", 0, 1, 0, 2, Q("9 mm")),
    Sketcher.Constraint("DistanceX", 0, 2, -1, 1, Q("8.129241 mm")),
    Sketcher.Constraint("DistanceY", 0, 2, -1, 1, Q("12.891372 mm")),
])
sketch15.setExpression("Constraints[8]", "Params.sketch15_width")
sketch15.setExpression("Constraints[9]", "Params.sketch15_height")
pocket6 = body.newObject("PartDesign::Pocket", "Pocket005")
pocket6.Profile = sketch15
pocket6.setExpression("Length", "Params.pocket6_length")
pocket6.Reversed = True

sketch16 = body.newObject("Sketcher::SketchObject", "Sketch015")
sketch16.AttachmentSupport = (doc.getObject("XZ_Plane"), [""])
sketch16.MapMode = "FlatFace"
sketch16.AttachmentOffset = App.Placement(V(0, 0, -37), App.Rotation())
sketch16.addGeometry([
    Part.LineSegment(V(-18.25, -11.75, 0), V(-18.25, -10.75, 0)),
    Part.LineSegment(V(-18.25, -10.75, 0), V(21.25, -10.75, 0)),
    Part.LineSegment(V(21.25, -10.75, 0), V(21.25, -11.75, 0)),
    Part.LineSegment(V(21.25, -11.75, 0), V(-18.25, -11.75, 0)),
], False)
sketch16.addConstraint([
    Sketcher.Constraint("Coincident", 0, 2, 1, 1),
    Sketcher.Constraint("Coincident", 1, 2, 2, 1),
    Sketcher.Constraint("Coincident", 2, 2, 3, 1),
    Sketcher.Constraint("Coincident", 3, 2, 0, 1),
    Sketcher.Constraint("Vertical", 0),
    Sketcher.Constraint("Horizontal", 1),
    Sketcher.Constraint("Vertical", 2),
    Sketcher.Constraint("Horizontal", 3),
    Sketcher.Constraint("DistanceY", 0, 1, 0, 2, Q("1 mm")),
    Sketcher.Constraint("DistanceX", 1, 1, 1, 2, Q("39.5 mm")),
    Sketcher.Constraint("DistanceX", 0, 2, -1, 1, Q("18.25 mm")),
    Sketcher.Constraint("DistanceY", 0, 2, -1, 1, Q("10.75 mm")),
])
sketch16.setExpression("Constraints[8]", "Params.sketch16_height")
sketch16.setExpression("Constraints[9]", "Params.sketch16_width")
pad10 = body.newObject("PartDesign::Pad", "Pad009")
pad10.Profile = sketch16
pad10.setExpression("Length", "Params.pad10_length")

sketch17 = body.newObject("Sketcher::SketchObject", "Sketch016")
sketch17.AttachmentSupport = (doc.getObject("XZ_Plane"), [""])
sketch17.MapMode = "FlatFace"
sketch17.AttachmentOffset = App.Placement(V(0, 0, -37), App.Rotation())
sketch17.addGeometry([
    Part.LineSegment(V(21.25, -9.948291, 0), V(21.25, -4.973857, 0)),
    Part.LineSegment(V(21.25, -4.973857, 0), V(26.194902, -4.973857, 0)),
    Part.LineSegment(V(26.194902, -4.973857, 0), V(26.194902, -9.948291, 0)),
    Part.LineSegment(V(26.194902, -9.948291, 0), V(21.25, -9.948291, 0)),
    Part.Circle(V(23.477388, -7.75, 0), V(0, 0, 1), 1.566703),
], False)
sketch17.addConstraint([
    Sketcher.Constraint("Coincident", 0, 2, 1, 1),
    Sketcher.Constraint("Coincident", 1, 2, 2, 1),
    Sketcher.Constraint("Coincident", 2, 2, 3, 1),
    Sketcher.Constraint("Coincident", 3, 2, 0, 1),
    Sketcher.Constraint("Vertical", 0),
    Sketcher.Constraint("Horizontal", 1),
    Sketcher.Constraint("Vertical", 2),
    Sketcher.Constraint("Horizontal", 3),
    Sketcher.Constraint("DistanceY", 4, 3, -1, 1, Q("7.75 mm")),
    Sketcher.Constraint("DistanceX", -1, 1, 0, 2, Q("21.25 mm")),
    Sketcher.Constraint("Diameter", 4, Q("3.133405 mm")),
    Sketcher.Constraint("DistanceX", 1, 1, 1, 2, Q("4.944902 mm")),
    Sketcher.Constraint("DistanceY", 0, 1, 0, 2, Q("4.974434 mm")),
    Sketcher.Constraint("DistanceY", 2, 2, -1, 1, Q("9.948291 mm")),
    Sketcher.Constraint("DistanceX", -1, 1, 4, 3, Q("23.477388 mm")),
])
pad11 = body.newObject("PartDesign::Pad", "Pad010")
pad11.Profile = sketch17
pad11.setExpression("Length", "Params.pad11_length")

sketch18 = body.newObject("Sketcher::SketchObject", "Sketch017")
sketch18.AttachmentSupport = (doc.getObject("XZ_Plane"), [""])
sketch18.MapMode = "FlatFace"
sketch18.AttachmentOffset = App.Placement(V(0, 0, -37), App.Rotation())
sketch18.addGeometry(Part.Circle(V(24.186288, -7.75, 0), V(0, 0, 1), 2.242267), False)
sketch18.addConstraint([
    Sketcher.Constraint("DistanceY", 0, 3, -1, 1, Q("7.75 mm")),
    Sketcher.Constraint("Diameter", 0, Q("4.484534 mm")),
    Sketcher.Constraint("DistanceX", -1, 1, 0, 3, Q("24.186288 mm")),
])
pocket7 = body.newObject("PartDesign::Pocket", "Pocket006")
pocket7.Profile = sketch18
pocket7.setExpression("Length", "Params.pocket7_length")
pocket7.Reversed = True

sketch19 = body.newObject("Sketcher::SketchObject", "Sketch018")
sketch19.AttachmentSupport = (doc.getObject("XZ_Plane"), [""])
sketch19.MapMode = "FlatFace"
sketch19.AttachmentOffset = App.Placement(V(0, 0, -37), App.Rotation())
sketch19.addGeometry([
    Part.LineSegment(V(21.25, 12.602648, 0), V(21.25, 19.25, 0)),
    Part.LineSegment(V(21.25, 19.25, 0), V(23.189565, 19.25, 0)),
    Part.LineSegment(V(23.189565, 19.25, 0), V(23.189565, 12.602648, 0)),
    Part.LineSegment(V(23.189565, 12.602648, 0), V(21.25, 12.602648, 0)),
], False)
sketch19.addConstraint([
    Sketcher.Constraint("Coincident", 0, 2, 1, 1),
    Sketcher.Constraint("Coincident", 1, 2, 2, 1),
    Sketcher.Constraint("Coincident", 2, 2, 3, 1),
    Sketcher.Constraint("Coincident", 3, 2, 0, 1),
    Sketcher.Constraint("Vertical", 0),
    Sketcher.Constraint("Horizontal", 1),
    Sketcher.Constraint("Vertical", 2),
    Sketcher.Constraint("Horizontal", 3),
    Sketcher.Constraint("DistanceX", -1, 1, 0, 2, Q("21.25 mm")),
    Sketcher.Constraint("DistanceY", -1, 1, 0, 2, Q("19.25 mm")),
    Sketcher.Constraint("DistanceY", 0, 1, 0, 2, Q("6.647352 mm")),
    Sketcher.Constraint("DistanceX", 1, 1, 1, 2, Q("1.939565 mm")),
])
pad12 = body.newObject("PartDesign::Pad", "Pad011")
pad12.Profile = sketch19
pad12.setExpression("Length", "Params.pad12_length")

sketch20 = body.newObject("Sketcher::SketchObject", "Sketch019")
sketch20.AttachmentSupport = (doc.getObject("XZ_Plane"), [""])
sketch20.MapMode = "FlatFace"
sketch20.AttachmentOffset = App.Placement(V(0, 0, -37), App.Rotation())
sketch20.addGeometry(Part.Circle(V(24.5, 15.25, 0), V(0, 0, 1), 2.608388), False)
sketch20.addConstraint([
    Sketcher.Constraint("DistanceX", -1, 1, 0, 3, Q("24.5 mm")),
    Sketcher.Constraint("DistanceY", -1, 1, 0, 3, Q("15.25 mm")),
    Sketcher.Constraint("Diameter", 0, Q("5.216776 mm")),
])
pocket8 = body.newObject("PartDesign::Pocket", "Pocket007")
pocket8.Profile = sketch20
pocket8.setExpression("Length", "Params.pocket8_length")
pocket8.Reversed = True

sketch21 = body.newObject("Sketcher::SketchObject", "Sketch020")
sketch21.AttachmentSupport = (doc.getObject("XZ_Plane"), [""])
sketch21.MapMode = "FlatFace"
sketch21.AttachmentOffset = App.Placement(V(0, 0, -37), App.Rotation())
sketch21.addGeometry(Part.Circle(V(-23, -7.75, 0), V(0, 0, 1), 2.04554), False)
sketch21.addConstraint([
    Sketcher.Constraint("DistanceX", 0, 3, -1, 1, Q("23 mm")),
    Sketcher.Constraint("Diameter", 0, Q("4.09108 mm")),
    Sketcher.Constraint("DistanceY", 0, 3, -1, 1, Q("7.75 mm")),
])
pocket9 = body.newObject("PartDesign::Pocket", "Pocket008")
pocket9.Profile = sketch21
pocket9.setExpression("Length", "Params.pocket9_length")
pocket9.Reversed = True

sketch22 = body.newObject("Sketcher::SketchObject", "Sketch021")
sketch22.AttachmentSupport = (doc.getObject("XZ_Plane"), [""])
sketch22.MapMode = "FlatFace"
sketch22.AttachmentOffset = App.Placement(V(0, 0, -37), App.Rotation())
sketch22.addGeometry(Part.Circle(V(-23, 15.25, 0), V(0, 0, 1), 2.280483), False)
sketch22.addConstraint([
    Sketcher.Constraint("DistanceX", 0, 3, -1, 1, Q("23 mm")),
    Sketcher.Constraint("DistanceY", -1, 1, 0, 3, Q("15.25 mm")),
    Sketcher.Constraint("Diameter", 0, Q("4.560966 mm")),
])
pocket10 = body.newObject("PartDesign::Pocket", "Pocket009")
pocket10.Profile = sketch22
pocket10.setExpression("Length", "Params.pocket10_length")
pocket10.Reversed = True

sketch23 = body.newObject("Sketcher::SketchObject", "Sketch022")
sketch23.AttachmentSupport = (doc.getObject("XY_Plane"), [""])
sketch23.MapMode = "FlatFace"
sketch23.AttachmentOffset = App.Placement(V(0, 0, -25), App.Rotation())
sketch23.addGeometry([
    Part.LineSegment(V(6.73008, 27, 0), V(6.73008, 2, 0)),
    Part.LineSegment(V(6.73008, 2, 0), V(-8.26992, 2, 0)),
    Part.LineSegment(V(-8.26992, 2, 0), V(-8.26992, 27, 0)),
    Part.LineSegment(V(-8.26992, 27, 0), V(6.73008, 27, 0)),
], False)
sketch23.addConstraint([
    Sketcher.Constraint("Coincident", 0, 2, 1, 1),
    Sketcher.Constraint("Coincident", 1, 2, 2, 1),
    Sketcher.Constraint("Coincident", 2, 2, 3, 1),
    Sketcher.Constraint("Coincident", 3, 2, 0, 1),
    Sketcher.Constraint("Vertical", 0),
    Sketcher.Constraint("Horizontal", 1),
    Sketcher.Constraint("Vertical", 2),
    Sketcher.Constraint("Horizontal", 3),
    Sketcher.Constraint("DistanceX", 1, 2, 1, 1, Q("15 mm")),
    Sketcher.Constraint("DistanceY", 0, 2, 0, 1, Q("25 mm")),
    Sketcher.Constraint("DistanceY", -1, 1, 0, 2, Q("2 mm")),
    Sketcher.Constraint("DistanceX", -1, 1, 0, 2, Q("6.73008 mm")),
])
sketch23.setExpression("Constraints[8]", "Params.sketch23_width")
sketch23.setExpression("Constraints[9]", "Params.sketch23_height")
pad13 = body.newObject("PartDesign::Pad", "Pad012")
pad13.Profile = sketch23
pad13.setExpression("Length", "Params.pad13_length")

sketch24 = body.newObject("Sketcher::SketchObject", "Sketch023")
sketch24.AttachmentSupport = (doc.getObject("XZ_Plane"), [""])
sketch24.MapMode = "FlatFace"
sketch24.AttachmentOffset = App.Placement(V(0, 0, -2), App.Rotation())
sketch24.addGeometry([
    Part.Circle(V(-20, -38, 0), V(0, 0, 1), 1.6),
    Part.Circle(V(20, -38, 0), V(0, 0, 1), 1.6),
    Part.Circle(V(-35, 35, 0), V(0, 0, 1), 1.6),
    Part.Circle(V(35, 35, 0), V(0, 0, 1), 1.6),
], False)
sketch24.addConstraint([
    Sketcher.Constraint("Equal", 0, 1),
    Sketcher.Constraint("Equal", 1, 2),
    Sketcher.Constraint("Equal", 2, 3),
    Sketcher.Constraint("Symmetric", 0, 3, 1, 3, -2),
    Sketcher.Constraint("Symmetric", 2, 3, 3, 3, -2),
    Sketcher.Constraint("Diameter", 0, Q("3.2 mm")),
    Sketcher.Constraint("DistanceX", 0, 3, -1, 1, Q("20 mm")),
    Sketcher.Constraint("DistanceY", 0, 3, -1, 1, Q("38 mm")),
    Sketcher.Constraint("DistanceX", 2, 3, -1, 1, Q("35 mm")),
    Sketcher.Constraint("DistanceY", -1, 1, 2, 3, Q("35 mm")),
])
sketch24.setExpression("Constraints[5]", "Params.sketch24_diameter")
pocket11 = body.newObject("PartDesign::Pocket", "Pocket010")
pocket11.Profile = sketch24
pocket11.setExpression("Length", "Params.pocket11_length")
pocket11.Reversed = True

doc.recompute()
